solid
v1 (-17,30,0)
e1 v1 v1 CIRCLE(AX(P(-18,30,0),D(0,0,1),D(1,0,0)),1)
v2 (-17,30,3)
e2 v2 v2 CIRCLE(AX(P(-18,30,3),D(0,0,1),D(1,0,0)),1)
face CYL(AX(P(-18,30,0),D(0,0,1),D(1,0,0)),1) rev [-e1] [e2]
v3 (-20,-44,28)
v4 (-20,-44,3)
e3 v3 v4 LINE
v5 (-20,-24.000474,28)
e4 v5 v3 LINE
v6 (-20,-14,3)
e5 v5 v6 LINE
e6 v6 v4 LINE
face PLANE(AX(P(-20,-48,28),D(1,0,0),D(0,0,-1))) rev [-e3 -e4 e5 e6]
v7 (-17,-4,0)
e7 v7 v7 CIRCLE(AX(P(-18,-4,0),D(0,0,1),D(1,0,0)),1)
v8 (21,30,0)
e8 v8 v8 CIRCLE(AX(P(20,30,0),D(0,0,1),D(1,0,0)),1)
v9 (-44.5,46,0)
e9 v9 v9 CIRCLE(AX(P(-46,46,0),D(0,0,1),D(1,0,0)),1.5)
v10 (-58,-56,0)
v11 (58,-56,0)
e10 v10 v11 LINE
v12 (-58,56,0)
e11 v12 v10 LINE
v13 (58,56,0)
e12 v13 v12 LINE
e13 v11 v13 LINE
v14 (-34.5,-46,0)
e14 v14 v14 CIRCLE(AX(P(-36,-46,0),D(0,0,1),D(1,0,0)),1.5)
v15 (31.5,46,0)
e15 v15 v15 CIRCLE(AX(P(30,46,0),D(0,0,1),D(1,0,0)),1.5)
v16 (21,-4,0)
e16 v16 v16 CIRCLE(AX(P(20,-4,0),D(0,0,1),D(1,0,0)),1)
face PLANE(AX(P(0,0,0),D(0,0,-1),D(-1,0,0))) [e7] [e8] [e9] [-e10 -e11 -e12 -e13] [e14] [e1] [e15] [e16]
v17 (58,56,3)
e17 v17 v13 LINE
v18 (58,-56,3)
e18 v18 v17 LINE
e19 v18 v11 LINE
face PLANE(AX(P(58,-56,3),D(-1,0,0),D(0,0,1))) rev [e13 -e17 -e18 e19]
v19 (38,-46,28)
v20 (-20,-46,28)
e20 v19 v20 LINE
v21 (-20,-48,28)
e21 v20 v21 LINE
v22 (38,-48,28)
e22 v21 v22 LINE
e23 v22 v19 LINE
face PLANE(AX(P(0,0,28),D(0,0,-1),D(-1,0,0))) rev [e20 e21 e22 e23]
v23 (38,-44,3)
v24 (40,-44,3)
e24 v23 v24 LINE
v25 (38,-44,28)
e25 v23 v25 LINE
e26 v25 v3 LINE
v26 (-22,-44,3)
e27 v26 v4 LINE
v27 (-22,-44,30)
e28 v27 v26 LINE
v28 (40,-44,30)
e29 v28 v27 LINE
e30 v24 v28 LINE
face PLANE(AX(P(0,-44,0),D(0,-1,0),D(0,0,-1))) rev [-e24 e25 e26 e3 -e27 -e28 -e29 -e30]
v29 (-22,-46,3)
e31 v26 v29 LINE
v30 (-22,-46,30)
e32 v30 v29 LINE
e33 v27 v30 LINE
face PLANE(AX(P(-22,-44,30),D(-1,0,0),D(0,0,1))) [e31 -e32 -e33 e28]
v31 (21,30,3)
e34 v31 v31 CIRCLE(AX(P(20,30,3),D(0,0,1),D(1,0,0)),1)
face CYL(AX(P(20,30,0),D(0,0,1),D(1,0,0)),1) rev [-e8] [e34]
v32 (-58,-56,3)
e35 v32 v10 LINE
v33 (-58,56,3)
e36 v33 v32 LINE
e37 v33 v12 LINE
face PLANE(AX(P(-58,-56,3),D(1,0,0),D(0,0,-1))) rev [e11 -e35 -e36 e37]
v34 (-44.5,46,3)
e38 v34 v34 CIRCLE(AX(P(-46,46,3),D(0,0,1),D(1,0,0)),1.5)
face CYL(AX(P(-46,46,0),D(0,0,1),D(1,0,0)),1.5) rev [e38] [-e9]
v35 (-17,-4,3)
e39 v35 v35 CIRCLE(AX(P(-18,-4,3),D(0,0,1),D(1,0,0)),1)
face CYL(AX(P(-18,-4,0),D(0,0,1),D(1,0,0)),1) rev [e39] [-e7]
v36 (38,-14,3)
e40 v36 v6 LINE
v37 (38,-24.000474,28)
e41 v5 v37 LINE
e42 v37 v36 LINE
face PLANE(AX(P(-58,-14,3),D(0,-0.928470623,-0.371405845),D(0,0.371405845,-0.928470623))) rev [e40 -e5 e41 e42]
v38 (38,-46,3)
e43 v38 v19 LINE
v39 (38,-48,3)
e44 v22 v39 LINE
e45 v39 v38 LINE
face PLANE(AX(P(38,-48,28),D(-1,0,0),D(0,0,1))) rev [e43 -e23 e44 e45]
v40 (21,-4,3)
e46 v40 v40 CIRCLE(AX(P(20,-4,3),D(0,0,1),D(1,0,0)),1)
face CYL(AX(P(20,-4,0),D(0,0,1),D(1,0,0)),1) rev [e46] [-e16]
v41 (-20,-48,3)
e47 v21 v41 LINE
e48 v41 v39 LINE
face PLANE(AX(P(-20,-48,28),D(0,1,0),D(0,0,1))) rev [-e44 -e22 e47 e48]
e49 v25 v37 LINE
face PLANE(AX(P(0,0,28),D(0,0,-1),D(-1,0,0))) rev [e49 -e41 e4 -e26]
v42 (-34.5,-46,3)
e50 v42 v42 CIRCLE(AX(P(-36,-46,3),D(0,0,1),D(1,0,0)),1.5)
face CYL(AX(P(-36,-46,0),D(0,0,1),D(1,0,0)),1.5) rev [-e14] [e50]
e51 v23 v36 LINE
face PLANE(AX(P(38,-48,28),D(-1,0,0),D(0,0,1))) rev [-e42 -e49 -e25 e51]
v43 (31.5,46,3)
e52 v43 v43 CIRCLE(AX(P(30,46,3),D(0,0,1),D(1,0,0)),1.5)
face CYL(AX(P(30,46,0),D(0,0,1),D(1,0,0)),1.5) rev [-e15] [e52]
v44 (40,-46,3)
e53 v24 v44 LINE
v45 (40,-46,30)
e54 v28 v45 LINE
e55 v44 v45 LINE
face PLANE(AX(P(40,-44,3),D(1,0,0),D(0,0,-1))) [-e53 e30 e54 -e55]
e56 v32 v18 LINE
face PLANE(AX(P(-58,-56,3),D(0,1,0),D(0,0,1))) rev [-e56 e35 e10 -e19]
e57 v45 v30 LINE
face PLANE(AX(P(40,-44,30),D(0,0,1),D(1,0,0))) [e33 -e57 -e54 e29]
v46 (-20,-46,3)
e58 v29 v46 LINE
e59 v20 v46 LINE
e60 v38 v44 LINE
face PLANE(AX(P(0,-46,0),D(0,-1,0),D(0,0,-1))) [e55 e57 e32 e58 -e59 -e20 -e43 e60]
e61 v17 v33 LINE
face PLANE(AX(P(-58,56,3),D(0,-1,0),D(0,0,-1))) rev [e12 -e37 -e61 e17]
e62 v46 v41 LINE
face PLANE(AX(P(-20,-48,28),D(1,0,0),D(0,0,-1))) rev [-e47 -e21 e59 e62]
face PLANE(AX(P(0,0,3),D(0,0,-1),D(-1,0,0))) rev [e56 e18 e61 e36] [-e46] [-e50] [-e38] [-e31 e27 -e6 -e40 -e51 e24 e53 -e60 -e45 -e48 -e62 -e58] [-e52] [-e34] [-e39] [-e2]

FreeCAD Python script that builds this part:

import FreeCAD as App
import Part
import Sketcher
Q = App.Units.Quantity

doc = App.newDocument("Part")
body = doc.addObject("PartDesign::Body", "Body")

# Sketch on XY plane
sketch1 = doc.addObject("Sketcher::SketchObject", "Sketch")
body.addObject(sketch1)
sketch1.AttachmentSupport = (doc.XY_Plane, [""])
sketch1.MapMode = "FlatFace"
sketch1.addGeometry([
    Part.LineSegment(App.Vector(-58, 56, 0), App.Vector(-58, -56, 0)),
    Part.LineSegment(App.Vector(-58, -56, 0), App.Vector(58, -56, 0)),
    Part.LineSegment(App.Vector(58, -56, 0), App.Vector(58, 56, 0)),
    Part.LineSegment(App.Vector(58, 56, 0), App.Vector(-58, 56, 0)),
], False)
sketch1.addConstraint([
    Sketcher.Constraint("Coincident", 0, 2, 1, 1),
    Sketcher.Constraint("Coincident", 1, 2, 2, 1),
    Sketcher.Constraint("Coincident", 2, 2, 3, 1),
    Sketcher.Constraint("Coincident", 3, 2, 0, 1),
    Sketcher.Constraint("Vertical", 0),
    Sketcher.Constraint("Horizontal", 1),
    Sketcher.Constraint("Vertical", 2),
    Sketcher.Constraint("Horizontal", 3),
    Sketcher.Constraint("Symmetric", 0, 2, 2, 2, -1, 1),
    Sketcher.Constraint("DistanceX", 1, 1, 1, 2, Q("116 mm")),
    Sketcher.Constraint("DistanceY", 0, 2, 0, 1, Q("112 mm")),
])
pad1 = doc.addObject("PartDesign::Pad", "Pad")
body.addObject(pad1)
pad1.Profile = sketch1
pad1.Length = 3

# Sketch on XY plane
sketch2 = doc.addObject("Sketcher::SketchObject", "Sketch001")
body.addObject(sketch2)
sketch2.AttachmentSupport = (doc.XY_Plane, [""])
sketch2.MapMode = "FlatFace"
sketch2.AttachmentOffset = App.Placement(App.Vector(0, 0, 3), App.Rotation())
sketch2.addGeometry([
    Part.LineSegment(App.Vector(-20, -14, 0), App.Vector(-20, -48, 0)),
    Part.LineSegment(App.Vector(-20, -48, 0), App.Vector(38, -48, 0)),
    Part.LineSegment(App.Vector(38, -48, 0), App.Vector(38, -14, 0)),
    Part.LineSegment(App.Vector(38, -14, 0), App.Vector(-20, -14, 0)),
], False)
sketch2.addConstraint([
    Sketcher.Constraint("Coincident", 0, 2, 1, 1),
    Sketcher.Constraint("Coincident", 1, 2, 2, 1),
    Sketcher.Constraint("Coincident", 2, 2, 3, 1),
    Sketcher.Constraint("Coincident", 3, 2, 0, 1),
    Sketcher.Constraint("Vertical", 0),
    Sketcher.Constraint("Horizontal", 1),
    Sketcher.Constraint("Vertical", 2),
    Sketcher.Constraint("Horizontal", 3),
    Sketcher.Constraint("DistanceX", 1, 1, 1, 2, Q("58 mm")),
    Sketcher.Constraint("DistanceY", 0, 2, 0, 1, Q("34 mm")),
    Sketcher.Constraint("DistanceX", 0, 2, -1, 1, Q("20 mm")),
    Sketcher.Constraint("DistanceY", 0, 2, -1, 1, Q("48 mm")),
])
pad2 = doc.addObject("PartDesign::Pad", "Pad001")
body.addObject(pad2)
pad2.Profile = sketch2
pad2.Length = 25

# Sketch on XZ plane
sketch3 = doc.addObject("Sketcher::SketchObject", "Sketch002")
body.addObject(sketch3)
sketch3.AttachmentSupport = (doc.XZ_Plane, [""])
sketch3.MapMode = "FlatFace"
sketch3.AttachmentOffset = App.Placement(App.Vector(0, 0, 46), App.Rotation())
sketch3.addGeometry([
    Part.LineSegment(App.Vector(40, 3, 0), App.Vector(40, 30, 0)),
    Part.LineSegment(App.Vector(40, 30, 0), App.Vector(-22, 30, 0)),
    Part.LineSegment(App.Vector(-22, 30, 0), App.Vector(-22, 3, 0)),
    Part.LineSegment(App.Vector(-22, 3, 0), App.Vector(40, 3, 0)),
], False)
sketch3.addConstraint([
    Sketcher.Constraint("Coincident", 0, 2, 1, 1),
    Sketcher.Constraint("Coincident", 1, 2, 2, 1),
    Sketcher.Constraint("Coincident", 2, 2, 3, 1),
    Sketcher.Constraint("Coincident", 3, 2, 0, 1),
    Sketcher.Constraint("Vertical", 0),
    Sketcher.Constraint("Horizontal", 1),
    Sketcher.Constraint("Vertical", 2),
    Sketcher.Constraint("Horizontal", 3),
    Sketcher.Constraint("DistanceX", 1, 2, 1, 1, Q("62 mm")),
    Sketcher.Constraint("DistanceY", 0, 1, 0, 2, Q("27 mm")),
    Sketcher.Constraint("DistanceX", -1, 1, 0, 2, Q("40 mm")),
    Sketcher.Constraint("DistanceY", -1, 1, 0, 2, Q("30 mm")),
])
pad3 = doc.addObject("PartDesign::Pad", "Pad002")
body.addObject(pad3)
pad3.Profile = sketch3
pad3.Length = 2
pad3.Reversed = True

# Sketch on YZ plane
sketch4 = doc.addObject("Sketcher::SketchObject", "Sketch003")
body.addObject(sketch4)
sketch4.AttachmentSupport = (doc.YZ_Plane, [""])
sketch4.MapMode = "FlatFace"
sketch4.AttachmentOffset = App.Placement(App.Vector(0, 0, 38), App.Rotation())
sketch4.addGeometry([
    Part.LineSegment(App.Vector(-24, 28, 0), App.Vector(-14, 3, 0)),
    Part.LineSegment(App.Vector(-14, 3, 0), App.Vector(-14, 28, 0)),
    Part.LineSegment(App.Vector(-14, 28, 0), App.Vector(-24, 28, 0)),
], False)
sketch4.addConstraint([
    Sketcher.Constraint("Coincident", 0, 2, 1, 1),
    Sketcher.Constraint("Coincident", 1, 2, 2, 1),
    Sketcher.Constraint("Coincident", 2, 2, 0, 1),
    Sketcher.Constraint("Vertical", 1),
    Sketcher.Constraint("Horizontal", 2),
    Sketcher.Constraint("DistanceY", 1, 1, 1, 2, Q("25 mm")),
    Sketcher.Constraint("DistanceX", 0, 2, -1, 1, Q("14 mm")),
    Sketcher.Constraint("DistanceY", -1, 1, 0, 2, Q("3 mm")),
    Sketcher.Constraint("Distance", 0, Q("26.926 mm")),
])
pocket1 = doc.addObject("PartDesign::Pocket", "Pocket")
body.addObject(pocket1)
pocket1.Profile = sketch4
pocket1.Type = "ThroughAll"

# Sketch on XY plane
sketch5 = doc.addObject("Sketcher::SketchObject", "Sketch004")
body.addObject(sketch5)
sketch5.AttachmentSupport = (doc.XY_Plane, [""])
sketch5.MapMode = "FlatFace"
sketch5.AttachmentOffset = App.Placement(App.Vector(0, 0, 3), App.Rotation())
sketch5.addGeometry([
    Part.Circle(App.Vector(-36, -46, 0), App.Vector(0, 0, 1), 1.5),  # 0
    Part.Circle(App.Vector(-46, 46, 0), App.Vector(0, 0, 1), 1.5),  # 1
    Part.Circle(App.Vector(30, 46, 0), App.Vector(0, 0, 1), 1.5),  # 2
    Part.Circle(App.Vector(20, 30, 0), App.Vector(0, 0, 1), 1),  # 3
    Part.Circle(App.Vector(20, -4, 0), App.Vector(0, 0, 1), 1),  # 4
    Part.Circle(App.Vector(-18, -4, 0), App.Vector(0, 0, 1), 1),  # 5
    Part.Circle(App.Vector(-18, 30, 0), App.Vector(0, 0, 1), 1),  # 6
], False)
sketch5.addConstraint([
    Sketcher.Constraint("Equal", 0, 1),
    Sketcher.Constraint("Equal", 1, 2),
    Sketcher.Constraint("Equal", 3, 4),
    Sketcher.Constraint("Equal", 4, 5),
    Sketcher.Constraint("Equal", 5, 6),
    Sketcher.Constraint("Horizontal", 1, 3, 2, 3),
    Sketcher.Constraint("Horizontal", 4, 3, 5, 3),
    Sketcher.Constraint("Horizontal", 3, 3, 6, 3),
    Sketcher.Constraint("Vertical", 3, 3, 4, 3),
    Sketcher.Constraint("Vertical", 5, 3, 6, 3),
    Sketcher.Constraint("Diameter", 0, Q("3 mm")),
    Sketcher.Constraint("Diameter", 3, Q("2 mm")),
    Sketcher.Constraint("DistanceX", 0, 3, -1, 1, Q("36 mm")),
    Sketcher.Constraint("DistanceY", 0, 3, -1, 1, Q("46 mm")),
    Sketcher.Constraint("DistanceX", 1, 3, -1, 1, Q("46 mm")),
    Sketcher.Constraint("DistanceY", -1, 1, 1, 3, Q("46 mm")),
    Sketcher.Constraint("DistanceX", -1, 1, 2, 3, Q("30 mm")),
    Sketcher.Constraint("DistanceX", -1, 1, 3, 3, Q("20 mm")),
    Sketcher.Constraint("DistanceY", -1, 1, 3, 3, Q("30 mm")),
    Sketcher.Constraint("DistanceY", 4, 3, -1, 1, Q("4 mm")),
    Sketcher.Constraint("DistanceX", 5, 3, -1, 1, Q("18 mm")),
])
pocket2 = doc.addObject("PartDesign::Pocket", "Pocket001")
body.addObject(pocket2)
pocket2.Profile = sketch5
pocket2.Type = "ThroughAll"

doc.recompute()
